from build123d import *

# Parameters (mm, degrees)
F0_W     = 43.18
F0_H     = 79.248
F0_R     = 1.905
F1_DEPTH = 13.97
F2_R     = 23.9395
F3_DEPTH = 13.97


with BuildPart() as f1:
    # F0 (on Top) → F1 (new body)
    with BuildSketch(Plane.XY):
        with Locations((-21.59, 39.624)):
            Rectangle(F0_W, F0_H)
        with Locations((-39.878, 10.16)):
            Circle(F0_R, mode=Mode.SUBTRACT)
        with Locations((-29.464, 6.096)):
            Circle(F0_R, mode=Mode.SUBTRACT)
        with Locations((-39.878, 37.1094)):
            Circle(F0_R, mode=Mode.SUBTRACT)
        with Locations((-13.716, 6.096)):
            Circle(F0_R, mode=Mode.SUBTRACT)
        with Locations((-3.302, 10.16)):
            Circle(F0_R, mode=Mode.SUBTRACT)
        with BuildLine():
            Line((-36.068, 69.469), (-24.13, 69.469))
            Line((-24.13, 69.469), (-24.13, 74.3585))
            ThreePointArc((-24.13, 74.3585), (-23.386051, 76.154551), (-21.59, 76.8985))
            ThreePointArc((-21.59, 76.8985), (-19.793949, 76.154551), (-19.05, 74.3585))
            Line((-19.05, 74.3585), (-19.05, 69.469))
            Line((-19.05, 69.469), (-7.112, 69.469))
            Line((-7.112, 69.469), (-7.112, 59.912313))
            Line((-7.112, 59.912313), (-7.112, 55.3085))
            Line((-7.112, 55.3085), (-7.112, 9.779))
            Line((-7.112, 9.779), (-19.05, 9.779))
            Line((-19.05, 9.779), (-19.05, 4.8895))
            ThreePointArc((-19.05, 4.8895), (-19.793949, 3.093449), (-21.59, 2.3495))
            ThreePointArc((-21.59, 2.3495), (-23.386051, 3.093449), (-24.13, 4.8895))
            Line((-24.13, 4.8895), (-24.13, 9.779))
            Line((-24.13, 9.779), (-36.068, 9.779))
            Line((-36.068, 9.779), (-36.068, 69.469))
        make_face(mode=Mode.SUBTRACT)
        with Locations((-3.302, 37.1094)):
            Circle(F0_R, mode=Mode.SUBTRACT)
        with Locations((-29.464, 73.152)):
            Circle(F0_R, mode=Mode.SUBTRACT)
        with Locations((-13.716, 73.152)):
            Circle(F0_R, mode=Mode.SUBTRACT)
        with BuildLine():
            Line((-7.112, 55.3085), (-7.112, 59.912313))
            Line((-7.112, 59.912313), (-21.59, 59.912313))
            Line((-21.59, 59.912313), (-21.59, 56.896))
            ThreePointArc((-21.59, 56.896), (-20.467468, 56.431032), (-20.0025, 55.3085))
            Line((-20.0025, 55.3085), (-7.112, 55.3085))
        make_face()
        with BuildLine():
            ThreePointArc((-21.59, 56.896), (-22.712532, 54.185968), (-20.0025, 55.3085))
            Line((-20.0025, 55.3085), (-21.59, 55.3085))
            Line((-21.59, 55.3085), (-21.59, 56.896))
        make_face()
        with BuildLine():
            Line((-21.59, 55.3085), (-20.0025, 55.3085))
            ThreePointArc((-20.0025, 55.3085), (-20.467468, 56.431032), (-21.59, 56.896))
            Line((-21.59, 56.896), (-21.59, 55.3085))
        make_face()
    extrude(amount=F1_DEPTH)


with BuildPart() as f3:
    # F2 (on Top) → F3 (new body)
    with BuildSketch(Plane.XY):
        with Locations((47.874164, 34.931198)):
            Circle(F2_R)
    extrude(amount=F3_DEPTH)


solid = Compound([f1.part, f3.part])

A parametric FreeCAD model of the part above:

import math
import FreeCAD as App
import Part
import Sketcher
from FreeCAD import Vector
Q = App.Units.Quantity


def add_polygon(sketch, points):
    """Adds a closed chain of lines whose ends are joined by coincident constraints."""
    first, n = sketch.GeometryCount, len(points)
    for a, b in zip(points, points[1:] + points[:1]):
        sketch.addGeometry(Part.LineSegment(App.Vector(*a, 0), App.Vector(*b, 0)), False)
    for i in range(n):
        sketch.addConstraint(Sketcher.Constraint("Coincident", first + i, 2, first + (i + 1) % n, 1))

doc = App.newDocument("Part")
body = doc.addObject("PartDesign::Body", "Body")

# Sketch on XY plane
sketch1 = body.newObject("Sketcher::SketchObject", "Sketch")
sketch1.AttachmentSupport = (doc.getObject("XY_Plane"), [""])
sketch1.MapMode = "FlatFace"
add_polygon(sketch1, [(-43.2, 79.2), (-43.2, 0), (0, 0), (0, 79.2)])  # lines 0-3
sketch1.addGeometry(Part.Circle(Vector(-39.9, 10.2, 0), Vector(0, 0, 1), 1.9), False)  # 4
sketch1.addGeometry(Part.Circle(Vector(-29.5, 6.1, 0), Vector(0, 0, 1), 1.9), False)  # 5
sketch1.addGeometry(Part.Circle(Vector(-39.9, 37.1, 0), Vector(0, 0, 1), 1.9), False)  # 6
sketch1.addGeometry(Part.Circle(Vector(-13.7, 6.1, 0), Vector(0, 0, 1), 1.9), False)  # 7
sketch1.addGeometry(Part.Circle(Vector(-3.3, 10.2, 0), Vector(0, 0, 1), 1.9), False)  # 8
sketch1.addGeometry(Part.Circle(Vector(-3.3, 37.1, 0), Vector(0, 0, 1), 1.9), False)  # 9
sketch1.addGeometry(Part.Circle(Vector(-29.5, 73.2, 0), Vector(0, 0, 1), 1.9), False)  # 10
sketch1.addGeometry(Part.LineSegment(Vector(-36.1, 9.8, 0), Vector(-36.1, 69.5, 0)), False)  # 11
sketch1.addGeometry(Part.LineSegment(Vector(-36.1, 69.5, 0), Vector(-24.1, 69.5, 0)), False)  # 12
sketch1.addGeometry(Part.LineSegment(Vector(-24.1, 69.5, 0), Vector(-24.1, 74.4, 0)), False)  # 13
sketch1.addGeometry(Part.ArcOfCircle(Part.Circle(Vector(-21.6, 74.4, 0), Vector(0, 0, 1), 2.5), math.radians(90), math.radians(180)), False)  # 14
sketch1.addGeometry(Part.ArcOfCircle(Part.Circle(Vector(-21.6, 74.4, 0), Vector(0, 0, 1), 2.5), math.radians(0), math.radians(90)), False)  # 15
sketch1.addGeometry(Part.LineSegment(Vector(-19.1, 74.4, 0), Vector(-19.1, 69.5, 0)), False)  # 16
sketch1.addGeometry(Part.LineSegment(Vector(-19.1, 69.5, 0), Vector(-7.1, 69.5, 0)), False)  # 17
sketch1.addGeometry(Part.LineSegment(Vector(-7.1, 69.5, 0), Vector(-7.1, 59.9, 0)), False)  # 18
sketch1.addGeometry(Part.LineSegment(Vector(-7.1, 59.9, 0), Vector(-21.6, 59.9, 0)), False)  # 19
sketch1.addGeometry(Part.LineSegment(Vector(-21.6, 59.9, 0), Vector(-21.6, 56.9, 0)), False)  # 20
sketch1.addGeometry(Part.ArcOfCircle(Part.Circle(Vector(-21.6, 55.3, 0), Vector(0, 0, 1), 1.6), math.radians(90), math.radians(360)), False)  # 21
sketch1.addGeometry(Part.LineSegment(Vector(-20, 55.3, 0), Vector(-7.1, 55.3, 0)), False)  # 22
sketch1.addGeometry(Part.LineSegment(Vector(-7.1, 55.3, 0), Vector(-7.1, 9.8, 0)), False)  # 23
sketch1.addGeometry(Part.LineSegment(Vector(-7.1, 9.8, 0), Vector(-19.1, 9.8, 0)), False)  # 24
sketch1.addGeometry(Part.LineSegment(Vector(-19.1, 9.8, 0), Vector(-19.1, 4.9, 0)), False)  # 25
sketch1.addGeometry(Part.ArcOfCircle(Part.Circle(Vector(-21.6, 4.9, 0), Vector(0, 0, 1), 2.5), math.radians(-90), math.radians(0)), False)  # 26
sketch1.addGeometry(Part.ArcOfCircle(Part.Circle(Vector(-21.6, 4.9, 0), Vector(0, 0, 1), 2.5), math.radians(-180), math.radians(-90)), False)  # 27
sketch1.addGeometry(Part.LineSegment(Vector(-24.1, 4.9, 0), Vector(-24.1, 9.8, 0)), False)  # 28
sketch1.addGeometry(Part.LineSegment(Vector(-24.1, 9.8, 0), Vector(-36.1, 9.8, 0)), False)  # 29
sketch1.addGeometry(Part.Circle(Vector(-13.7, 73.2, 0), Vector(0, 0, 1), 1.9), False)  # 30
sketch1.addConstraint(Sketcher.Constraint("Coincident", 11, 2, 12, 1))
sketch1.addConstraint(Sketcher.Constraint("Coincident", 12, 2, 13, 1))
sketch1.addConstraint(Sketcher.Constraint("Tangent", 13, 2, 14, 2))
sketch1.addConstraint(Sketcher.Constraint("Tangent", 14, 1, 15, 2))
sketch1.addConstraint(Sketcher.Constraint("Tangent", 15, 1, 16, 1))
sketch1.addConstraint(Sketcher.Constraint("Coincident", 16, 2, 17, 1))
sketch1.addConstraint(Sketcher.Constraint("Coincident", 17, 2, 18, 1))
sketch1.addConstraint(Sketcher.Constraint("Coincident", 18, 2, 19, 1))
sketch1.addConstraint(Sketcher.Constraint("Coincident", 19, 2, 20, 1))
sketch1.addConstraint(Sketcher.Constraint("Coincident", 20, 2, 21, 1))
sketch1.addConstraint(Sketcher.Constraint("Coincident", 21, 2, 22, 1))
sketch1.addConstraint(Sketcher.Constraint("Coincident", 22, 2, 23, 1))
sketch1.addConstraint(Sketcher.Constraint("Coincident", 23, 2, 24, 1))
sketch1.addConstraint(Sketcher.Constraint("Coincident", 24, 2, 25, 1))
sketch1.addConstraint(Sketcher.Constraint("Tangent", 25, 2, 26, 2))
sketch1.addConstraint(Sketcher.Constraint("Tangent", 26, 1, 27, 2))
sketch1.addConstraint(Sketcher.Constraint("Tangent", 27, 1, 28, 1))
sketch1.addConstraint(Sketcher.Constraint("Coincident", 28, 2, 29, 1))
sketch1.addConstraint(Sketcher.Constraint("Coincident", 29, 2, 11, 1))
sketch1.addConstraint(Sketcher.Constraint("Vertical", 0))
sketch1.addConstraint(Sketcher.Constraint("Horizontal", 1))
sketch1.addConstraint(Sketcher.Constraint("Vertical", 2))
sketch1.addConstraint(Sketcher.Constraint("Horizontal", 3))
sketch1.addConstraint(Sketcher.Constraint("Vertical", 11))
sketch1.addConstraint(Sketcher.Constraint("Horizontal", 12))
sketch1.addConstraint(Sketcher.Constraint("Vertical", 13))
sketch1.addConstraint(Sketcher.Constraint("Vertical", 16))
sketch1.addConstraint(Sketcher.Constraint("Horizontal", 17))
sketch1.addConstraint(Sketcher.Constraint("Vertical", 18))
sketch1.addConstraint(Sketcher.Constraint("Horizontal", 19))
sketch1.addConstraint(Sketcher.Constraint("Vertical", 20))
sketch1.addConstraint(Sketcher.Constraint("Horizontal", 22))
sketch1.addConstraint(Sketcher.Constraint("Vertical", 23))
sketch1.addConstraint(Sketcher.Constraint("Horizontal", 24))
sketch1.addConstraint(Sketcher.Constraint("Vertical", 25))
sketch1.addConstraint(Sketcher.Constraint("Vertical", 28))
sketch1.addConstraint(Sketcher.Constraint("Horizontal", 29))
sketch1.addConstraint(Sketcher.Constraint("Coincident", 1, 2, -1, 1))
sketch1.addConstraint(Sketcher.Constraint("Equal", 4, 5))
sketch1.addConstraint(Sketcher.Constraint("Equal", 5, 6))
sketch1.addConstraint(Sketcher.Constraint("Equal", 6, 7))
sketch1.addConstraint(Sketcher.Constraint("Equal", 7, 8))
sketch1.addConstraint(Sketcher.Constraint("Equal", 8, 9))
sketch1.addConstraint(Sketcher.Constraint("Equal", 9, 10))
sketch1.addConstraint(Sketcher.Constraint("Equal", 14, 15))
sketch1.addConstraint(Sketcher.Constraint("Equal", 15, 26))
sketch1.addConstraint(Sketcher.Constraint("Equal", 26, 27))
sketch1.addConstraint(Sketcher.Constraint("Equal", 10, 30))
sketch1.addConstraint(Sketcher.Constraint("Horizontal", 5, 3, 7, 3))
sketch1.addConstraint(Sketcher.Constraint("Horizontal", 4, 3, 8, 3))
sketch1.addConstraint(Sketcher.Constraint("Horizontal", 6, 3, 9, 3))
sketch1.addConstraint(Sketcher.Constraint("Horizontal", 10, 3, 30, 3))
sketch1.addConstraint(Sketcher.Constraint("Horizontal", 12, 2, 16, 2))
sketch1.addConstraint(Sketcher.Constraint("Horizontal", 24, 2, 28, 2))
sketch1.addConstraint(Sketcher.Constraint("Vertical", 4, 3, 6, 3))
sketch1.addConstraint(Sketcher.Constraint("Vertical", 8, 3, 9, 3))
sketch1.addConstraint(Sketcher.Constraint("Vertical", 5, 3, 10, 3))
sketch1.addConstraint(Sketcher.Constraint("Vertical", 15, 3, 21, 3))
sketch1.addConstraint(Sketcher.Constraint("Vertical", 21, 3, 26, 3))
sketch1.addConstraint(Sketcher.Constraint("Vertical", 7, 3, 30, 3))
sketch1.addConstraint(Sketcher.Constraint("Vertical", 27, 3, 14, 1))
sketch1.addConstraint(Sketcher.Constraint("Vertical", 14, 1, 19, 2))
sketch1.addConstraint(Sketcher.Constraint("Vertical", 18, 2, 22, 2))
sketch1.addConstraint(Sketcher.Constraint("Vertical", 20, 2, 26, 1))
sketch1.addConstraint(Sketcher.Constraint("Equal", 12, 17))
sketch1.addConstraint(Sketcher.Constraint("Equal", 16, 25))
sketch1.addConstraint(Sketcher.Constraint("Radius", 14, Q("0.1 in")))
sketch1.addConstraint(Sketcher.Constraint("Diameter", 4, Q("0.15 in")))
sketch1.addConstraint(Sketcher.Constraint("DistanceX", 1, 1, 1, 2, Q("1.7 in")))
sketch1.addConstraint(Sketcher.Constraint("Radius", 21, Q("0.0625 in")))
sketch1.addConstraint(Sketcher.Constraint("DistanceX", 12, 1, 12, 2, Q("0.47 in")))
sketch1.addConstraint(Sketcher.Constraint("DistanceY", 0, 2, 0, 1, Q("3.12 in")))
sketch1.addConstraint(Sketcher.Constraint("DistanceY", 11, 1, 11, 2, Q("2.35 in")))
sketch1.addConstraint(Sketcher.Constraint("DistanceY", -1, 1, 4, 3, Q("0.4 in")))
sketch1.addConstraint(Sketcher.Constraint("DistanceX", 4, 3, -1, 1, Q("1.57 in")))
sketch1.addConstraint(Sketcher.Constraint("DistanceX", 5, 3, -1, 1, Q("1.16 in")))
sketch1.addConstraint(Sketcher.Constraint("DistanceY", -1, 1, 5, 3, Q("0.24 in")))
sketch1.addConstraint(Sketcher.Constraint("DistanceX", 7, 3, -1, 1, Q("0.54 in")))
sketch1.addConstraint(Sketcher.Constraint("DistanceX", 8, 3, -1, 1, Q("0.13 in")))
sketch1.addConstraint(Sketcher.Constraint("DistanceY", -1, 1, 10, 3, Q("2.88 in")))
sketch1.addConstraint(Sketcher.Constraint("DistanceX", 14, 3, -1, 1, Q("0.85 in")))
sketch1.addConstraint(Sketcher.Constraint("DistanceY", -1, 1, 20, 2, Q("2.24 in")))
sketch1.addConstraint(Sketcher.Constraint("DistanceY", 21, 3, 14, 3, Q("0.75 in")))
sketch1.addConstraint(Sketcher.Constraint("DistanceY", 13, 1, 13, 2, Q("0.1925 in")))
sketch1.addConstraint(Sketcher.Constraint("DistanceY", 23, 2, 23, 1, Q("1.7925 in")))
sketch1.addConstraint(Sketcher.Constraint("DistanceY", -1, 1, 6, 3, Q("1.461 in")))
sketch1.addConstraint(Sketcher.Constraint("DistanceY", 18, 2, 18, 1, 9.556687))
pad1 = body.newObject("PartDesign::Pad", "Pad")
pad1.Profile = sketch1
pad1.Length = Q("0.55 in")
body2 = doc.addObject("PartDesign::Body", "Body001")

# Sketch on XY plane
sketch2 = body2.newObject("Sketcher::SketchObject", "Sketch001")
sketch2.AttachmentSupport = (doc.getObject("XY_Plane001"), [""])
sketch2.MapMode = "FlatFace"
sketch2.addGeometry(Part.Circle(Vector(48, 35, 0), Vector(0, 0, 1), 24), False)
sketch2.addConstraint(Sketcher.Constraint("Diameter", 0, Q("1.885 in")))
sketch2.addConstraint(Sketcher.Constraint("DistanceY", -1, 1, 0, 3, 34.931198))
sketch2.addConstraint(Sketcher.Constraint("DistanceX", -1, 1, 0, 3, 47.874164))
pad2 = body2.newObject("PartDesign::Pad", "Pad001")
pad2.Profile = sketch2
pad2.Length = Q("0.55 in")

doc.recompute()
